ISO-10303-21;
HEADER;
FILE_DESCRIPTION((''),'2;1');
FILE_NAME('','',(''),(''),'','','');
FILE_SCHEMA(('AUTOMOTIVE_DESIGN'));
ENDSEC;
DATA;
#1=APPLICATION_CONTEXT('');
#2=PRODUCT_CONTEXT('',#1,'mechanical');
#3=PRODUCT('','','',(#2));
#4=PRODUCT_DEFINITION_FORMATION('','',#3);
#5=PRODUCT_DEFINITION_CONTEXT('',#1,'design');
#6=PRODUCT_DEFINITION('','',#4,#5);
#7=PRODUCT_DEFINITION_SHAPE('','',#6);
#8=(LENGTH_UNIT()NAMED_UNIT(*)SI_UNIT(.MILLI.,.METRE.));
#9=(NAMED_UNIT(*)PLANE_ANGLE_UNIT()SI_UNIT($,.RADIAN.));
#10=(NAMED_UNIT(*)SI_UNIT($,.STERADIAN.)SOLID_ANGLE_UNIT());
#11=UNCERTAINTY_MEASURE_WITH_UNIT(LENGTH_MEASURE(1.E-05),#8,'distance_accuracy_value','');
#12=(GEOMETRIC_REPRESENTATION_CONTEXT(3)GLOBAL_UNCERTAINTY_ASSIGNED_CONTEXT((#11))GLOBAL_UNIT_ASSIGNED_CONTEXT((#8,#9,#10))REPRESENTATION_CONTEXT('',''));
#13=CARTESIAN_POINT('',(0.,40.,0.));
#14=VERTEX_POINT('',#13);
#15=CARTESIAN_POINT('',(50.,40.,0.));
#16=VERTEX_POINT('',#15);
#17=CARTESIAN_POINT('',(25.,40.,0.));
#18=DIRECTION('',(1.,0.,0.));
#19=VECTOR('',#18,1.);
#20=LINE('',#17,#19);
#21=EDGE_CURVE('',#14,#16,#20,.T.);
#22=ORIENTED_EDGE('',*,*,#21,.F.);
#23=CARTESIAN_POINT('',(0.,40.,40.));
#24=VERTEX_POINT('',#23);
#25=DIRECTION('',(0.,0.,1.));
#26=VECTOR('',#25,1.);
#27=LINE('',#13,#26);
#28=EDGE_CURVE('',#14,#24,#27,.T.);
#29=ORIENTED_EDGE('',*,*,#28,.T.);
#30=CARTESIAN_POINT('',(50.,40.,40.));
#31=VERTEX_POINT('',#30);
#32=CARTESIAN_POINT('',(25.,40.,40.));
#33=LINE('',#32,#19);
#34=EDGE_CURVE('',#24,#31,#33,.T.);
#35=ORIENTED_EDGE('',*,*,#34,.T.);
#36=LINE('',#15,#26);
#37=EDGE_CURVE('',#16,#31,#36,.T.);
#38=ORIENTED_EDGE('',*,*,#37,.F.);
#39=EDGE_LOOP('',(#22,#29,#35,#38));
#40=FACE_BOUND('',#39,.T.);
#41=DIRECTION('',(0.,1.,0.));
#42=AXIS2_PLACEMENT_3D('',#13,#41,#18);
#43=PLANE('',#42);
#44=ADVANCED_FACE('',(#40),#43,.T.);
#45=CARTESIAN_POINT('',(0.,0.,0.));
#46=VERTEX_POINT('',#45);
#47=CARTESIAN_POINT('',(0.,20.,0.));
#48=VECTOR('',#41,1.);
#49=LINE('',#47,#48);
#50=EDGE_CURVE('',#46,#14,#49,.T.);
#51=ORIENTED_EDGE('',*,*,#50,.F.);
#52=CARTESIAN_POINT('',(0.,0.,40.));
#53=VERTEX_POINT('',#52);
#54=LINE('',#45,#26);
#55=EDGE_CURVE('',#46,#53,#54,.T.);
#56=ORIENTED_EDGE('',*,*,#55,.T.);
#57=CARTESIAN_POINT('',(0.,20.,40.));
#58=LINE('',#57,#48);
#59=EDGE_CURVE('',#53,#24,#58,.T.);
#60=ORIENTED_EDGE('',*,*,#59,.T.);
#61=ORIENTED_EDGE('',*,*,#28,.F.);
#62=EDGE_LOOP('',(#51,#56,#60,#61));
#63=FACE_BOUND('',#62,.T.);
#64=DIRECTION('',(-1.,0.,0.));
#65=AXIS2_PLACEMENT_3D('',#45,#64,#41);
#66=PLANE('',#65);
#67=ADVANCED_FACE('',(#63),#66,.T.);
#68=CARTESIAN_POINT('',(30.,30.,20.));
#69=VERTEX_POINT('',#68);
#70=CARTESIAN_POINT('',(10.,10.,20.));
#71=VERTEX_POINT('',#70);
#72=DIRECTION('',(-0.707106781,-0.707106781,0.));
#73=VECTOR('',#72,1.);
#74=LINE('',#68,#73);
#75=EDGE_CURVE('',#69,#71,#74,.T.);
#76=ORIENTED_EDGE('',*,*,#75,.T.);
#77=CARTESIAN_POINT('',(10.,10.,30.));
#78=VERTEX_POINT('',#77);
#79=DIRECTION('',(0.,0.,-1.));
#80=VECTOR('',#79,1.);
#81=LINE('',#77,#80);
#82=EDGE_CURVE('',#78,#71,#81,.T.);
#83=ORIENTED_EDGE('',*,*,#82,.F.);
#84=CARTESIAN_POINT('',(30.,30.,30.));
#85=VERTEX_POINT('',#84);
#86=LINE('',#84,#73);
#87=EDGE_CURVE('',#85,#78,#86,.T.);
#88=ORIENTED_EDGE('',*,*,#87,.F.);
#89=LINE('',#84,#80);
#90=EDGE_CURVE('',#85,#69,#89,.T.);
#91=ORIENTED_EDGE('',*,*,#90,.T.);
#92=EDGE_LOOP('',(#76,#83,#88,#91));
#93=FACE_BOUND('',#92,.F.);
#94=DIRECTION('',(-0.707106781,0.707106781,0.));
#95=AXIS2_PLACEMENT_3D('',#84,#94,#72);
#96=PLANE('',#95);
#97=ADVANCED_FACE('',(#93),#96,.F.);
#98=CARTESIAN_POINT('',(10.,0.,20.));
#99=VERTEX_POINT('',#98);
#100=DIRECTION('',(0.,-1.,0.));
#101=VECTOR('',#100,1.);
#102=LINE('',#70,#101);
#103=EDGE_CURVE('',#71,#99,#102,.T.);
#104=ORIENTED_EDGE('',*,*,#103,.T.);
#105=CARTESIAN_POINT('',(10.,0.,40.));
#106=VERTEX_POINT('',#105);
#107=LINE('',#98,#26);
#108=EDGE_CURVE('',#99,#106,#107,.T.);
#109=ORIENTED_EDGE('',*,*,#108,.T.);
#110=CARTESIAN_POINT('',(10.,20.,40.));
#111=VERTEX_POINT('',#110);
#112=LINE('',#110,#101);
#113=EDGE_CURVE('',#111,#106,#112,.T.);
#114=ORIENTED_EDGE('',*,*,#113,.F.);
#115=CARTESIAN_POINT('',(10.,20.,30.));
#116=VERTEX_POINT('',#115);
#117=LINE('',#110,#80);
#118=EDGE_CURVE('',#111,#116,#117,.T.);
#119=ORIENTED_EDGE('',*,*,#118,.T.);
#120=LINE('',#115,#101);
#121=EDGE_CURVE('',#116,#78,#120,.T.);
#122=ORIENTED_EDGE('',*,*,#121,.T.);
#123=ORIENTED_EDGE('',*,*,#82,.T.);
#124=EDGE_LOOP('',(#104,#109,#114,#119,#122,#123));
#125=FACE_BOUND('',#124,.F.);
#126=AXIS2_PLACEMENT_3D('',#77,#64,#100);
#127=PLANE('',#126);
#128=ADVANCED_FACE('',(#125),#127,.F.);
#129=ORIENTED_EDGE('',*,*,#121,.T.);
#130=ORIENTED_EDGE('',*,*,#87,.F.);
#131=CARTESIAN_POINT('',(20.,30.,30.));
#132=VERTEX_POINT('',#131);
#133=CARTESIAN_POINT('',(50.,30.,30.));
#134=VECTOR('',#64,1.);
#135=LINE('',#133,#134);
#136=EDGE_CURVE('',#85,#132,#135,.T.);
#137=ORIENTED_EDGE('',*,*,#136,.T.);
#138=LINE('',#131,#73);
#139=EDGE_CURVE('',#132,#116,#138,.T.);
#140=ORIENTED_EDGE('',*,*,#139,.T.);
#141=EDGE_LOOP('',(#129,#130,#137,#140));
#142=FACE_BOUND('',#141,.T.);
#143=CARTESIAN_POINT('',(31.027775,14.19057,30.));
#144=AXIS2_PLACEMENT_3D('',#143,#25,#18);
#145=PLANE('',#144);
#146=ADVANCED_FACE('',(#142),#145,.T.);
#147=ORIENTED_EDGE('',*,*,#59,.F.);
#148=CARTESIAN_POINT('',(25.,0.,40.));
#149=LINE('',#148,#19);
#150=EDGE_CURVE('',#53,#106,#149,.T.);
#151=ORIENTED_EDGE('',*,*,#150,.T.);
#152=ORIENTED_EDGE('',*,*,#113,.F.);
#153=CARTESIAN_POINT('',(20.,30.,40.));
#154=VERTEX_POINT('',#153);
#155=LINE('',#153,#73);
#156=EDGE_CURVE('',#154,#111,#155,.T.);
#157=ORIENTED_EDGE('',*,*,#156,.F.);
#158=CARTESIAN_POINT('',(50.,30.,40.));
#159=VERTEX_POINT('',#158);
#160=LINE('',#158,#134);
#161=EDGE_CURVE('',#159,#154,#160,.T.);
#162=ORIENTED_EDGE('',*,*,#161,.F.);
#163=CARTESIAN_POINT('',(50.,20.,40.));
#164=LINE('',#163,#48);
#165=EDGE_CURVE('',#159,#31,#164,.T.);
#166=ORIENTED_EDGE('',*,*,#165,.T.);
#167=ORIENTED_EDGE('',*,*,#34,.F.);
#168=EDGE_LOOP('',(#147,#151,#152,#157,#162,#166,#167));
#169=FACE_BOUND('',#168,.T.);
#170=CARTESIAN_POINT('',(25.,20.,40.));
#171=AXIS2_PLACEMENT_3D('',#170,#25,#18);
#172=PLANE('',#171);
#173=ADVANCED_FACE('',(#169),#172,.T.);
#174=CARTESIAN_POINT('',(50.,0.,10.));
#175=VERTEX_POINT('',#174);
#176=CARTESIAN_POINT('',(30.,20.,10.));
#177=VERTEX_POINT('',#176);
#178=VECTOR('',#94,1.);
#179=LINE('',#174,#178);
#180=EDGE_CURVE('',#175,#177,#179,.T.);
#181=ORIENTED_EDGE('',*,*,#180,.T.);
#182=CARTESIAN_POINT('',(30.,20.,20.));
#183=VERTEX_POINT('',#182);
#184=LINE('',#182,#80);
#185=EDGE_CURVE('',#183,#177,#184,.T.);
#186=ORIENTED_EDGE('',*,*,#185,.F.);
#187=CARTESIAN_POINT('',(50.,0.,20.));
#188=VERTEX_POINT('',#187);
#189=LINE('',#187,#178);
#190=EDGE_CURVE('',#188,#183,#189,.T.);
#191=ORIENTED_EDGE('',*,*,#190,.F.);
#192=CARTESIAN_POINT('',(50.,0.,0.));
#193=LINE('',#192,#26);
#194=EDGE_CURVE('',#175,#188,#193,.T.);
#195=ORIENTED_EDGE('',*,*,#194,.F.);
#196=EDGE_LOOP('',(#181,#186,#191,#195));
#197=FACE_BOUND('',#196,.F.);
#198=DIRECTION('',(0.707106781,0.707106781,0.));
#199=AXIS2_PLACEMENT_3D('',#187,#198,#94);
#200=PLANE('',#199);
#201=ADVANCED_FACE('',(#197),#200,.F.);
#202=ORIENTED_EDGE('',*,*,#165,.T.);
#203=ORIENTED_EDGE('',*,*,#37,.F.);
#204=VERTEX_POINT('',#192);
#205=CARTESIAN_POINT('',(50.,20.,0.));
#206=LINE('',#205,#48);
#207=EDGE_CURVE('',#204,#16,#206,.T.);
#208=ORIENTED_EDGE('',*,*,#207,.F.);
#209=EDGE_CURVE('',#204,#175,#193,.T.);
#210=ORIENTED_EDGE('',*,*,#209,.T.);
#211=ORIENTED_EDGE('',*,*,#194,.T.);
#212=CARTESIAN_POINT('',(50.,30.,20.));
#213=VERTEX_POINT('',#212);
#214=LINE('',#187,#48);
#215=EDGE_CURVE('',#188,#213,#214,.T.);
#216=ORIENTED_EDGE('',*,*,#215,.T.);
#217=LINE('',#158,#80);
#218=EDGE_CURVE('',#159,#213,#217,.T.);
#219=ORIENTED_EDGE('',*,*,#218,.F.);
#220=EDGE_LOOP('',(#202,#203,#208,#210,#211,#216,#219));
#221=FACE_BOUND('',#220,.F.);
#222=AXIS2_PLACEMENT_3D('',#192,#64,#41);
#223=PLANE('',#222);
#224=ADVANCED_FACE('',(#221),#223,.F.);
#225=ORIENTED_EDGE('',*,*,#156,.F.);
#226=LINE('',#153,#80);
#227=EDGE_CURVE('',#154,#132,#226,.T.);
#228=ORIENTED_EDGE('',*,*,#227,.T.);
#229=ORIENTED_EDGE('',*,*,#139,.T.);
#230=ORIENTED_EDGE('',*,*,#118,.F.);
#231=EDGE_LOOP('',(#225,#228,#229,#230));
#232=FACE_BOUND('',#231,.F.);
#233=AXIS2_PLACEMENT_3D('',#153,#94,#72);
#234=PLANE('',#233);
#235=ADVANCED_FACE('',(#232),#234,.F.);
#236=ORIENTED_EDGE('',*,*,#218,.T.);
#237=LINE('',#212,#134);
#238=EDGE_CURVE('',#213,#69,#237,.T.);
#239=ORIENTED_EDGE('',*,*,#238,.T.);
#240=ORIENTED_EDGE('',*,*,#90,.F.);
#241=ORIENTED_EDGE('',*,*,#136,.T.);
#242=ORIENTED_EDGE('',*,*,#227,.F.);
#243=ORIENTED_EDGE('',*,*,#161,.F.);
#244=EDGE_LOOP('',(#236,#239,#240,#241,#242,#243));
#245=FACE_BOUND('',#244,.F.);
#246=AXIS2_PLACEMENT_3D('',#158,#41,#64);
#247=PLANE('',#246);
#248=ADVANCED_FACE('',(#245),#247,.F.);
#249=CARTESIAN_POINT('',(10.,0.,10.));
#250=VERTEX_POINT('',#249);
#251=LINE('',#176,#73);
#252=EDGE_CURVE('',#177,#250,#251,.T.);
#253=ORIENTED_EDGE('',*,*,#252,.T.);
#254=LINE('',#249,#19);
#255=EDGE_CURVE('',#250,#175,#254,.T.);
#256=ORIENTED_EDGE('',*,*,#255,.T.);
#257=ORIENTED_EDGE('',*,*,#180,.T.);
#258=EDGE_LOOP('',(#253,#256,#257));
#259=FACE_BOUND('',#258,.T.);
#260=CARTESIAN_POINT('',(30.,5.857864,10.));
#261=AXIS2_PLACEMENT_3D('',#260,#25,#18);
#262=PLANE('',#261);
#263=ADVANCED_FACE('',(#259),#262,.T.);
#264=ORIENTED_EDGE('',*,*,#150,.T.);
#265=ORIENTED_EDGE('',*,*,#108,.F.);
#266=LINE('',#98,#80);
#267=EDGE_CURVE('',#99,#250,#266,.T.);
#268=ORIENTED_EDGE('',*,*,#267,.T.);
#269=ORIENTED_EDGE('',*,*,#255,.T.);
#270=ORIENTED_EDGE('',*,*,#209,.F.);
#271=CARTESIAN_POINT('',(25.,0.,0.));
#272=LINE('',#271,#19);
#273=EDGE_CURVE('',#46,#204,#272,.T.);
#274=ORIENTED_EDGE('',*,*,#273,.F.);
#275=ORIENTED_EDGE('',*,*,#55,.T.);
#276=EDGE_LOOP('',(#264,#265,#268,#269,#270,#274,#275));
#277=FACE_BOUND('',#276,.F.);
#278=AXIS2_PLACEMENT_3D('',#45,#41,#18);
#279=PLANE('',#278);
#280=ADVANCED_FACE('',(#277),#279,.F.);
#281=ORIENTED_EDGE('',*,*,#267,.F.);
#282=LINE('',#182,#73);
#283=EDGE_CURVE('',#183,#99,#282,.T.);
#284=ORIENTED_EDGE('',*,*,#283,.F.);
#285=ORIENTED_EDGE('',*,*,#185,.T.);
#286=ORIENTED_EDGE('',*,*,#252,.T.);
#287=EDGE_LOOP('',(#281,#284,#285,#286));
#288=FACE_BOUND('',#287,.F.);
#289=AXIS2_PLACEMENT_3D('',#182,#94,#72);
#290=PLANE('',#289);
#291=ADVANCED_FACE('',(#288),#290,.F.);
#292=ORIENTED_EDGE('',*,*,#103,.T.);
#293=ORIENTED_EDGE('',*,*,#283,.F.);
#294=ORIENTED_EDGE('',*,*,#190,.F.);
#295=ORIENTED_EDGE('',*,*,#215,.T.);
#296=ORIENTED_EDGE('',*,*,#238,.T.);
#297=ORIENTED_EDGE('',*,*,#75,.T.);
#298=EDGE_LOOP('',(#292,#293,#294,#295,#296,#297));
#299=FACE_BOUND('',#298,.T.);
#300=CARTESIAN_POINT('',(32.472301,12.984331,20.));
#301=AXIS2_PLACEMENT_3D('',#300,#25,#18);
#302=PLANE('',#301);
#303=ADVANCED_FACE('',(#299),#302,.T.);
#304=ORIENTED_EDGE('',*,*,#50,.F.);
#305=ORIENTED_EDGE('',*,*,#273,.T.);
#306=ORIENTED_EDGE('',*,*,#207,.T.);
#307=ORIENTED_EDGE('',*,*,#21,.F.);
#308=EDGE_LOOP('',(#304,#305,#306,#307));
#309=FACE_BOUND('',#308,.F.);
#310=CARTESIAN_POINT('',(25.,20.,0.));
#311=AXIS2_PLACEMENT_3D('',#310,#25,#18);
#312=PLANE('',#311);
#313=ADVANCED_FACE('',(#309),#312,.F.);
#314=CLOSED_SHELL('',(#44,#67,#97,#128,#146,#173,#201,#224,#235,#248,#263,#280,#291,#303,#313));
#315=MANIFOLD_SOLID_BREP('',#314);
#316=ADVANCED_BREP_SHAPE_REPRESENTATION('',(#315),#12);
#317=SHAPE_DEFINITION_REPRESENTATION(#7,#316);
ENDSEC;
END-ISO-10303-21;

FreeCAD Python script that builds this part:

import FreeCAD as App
import Part
import Sketcher

V = App.Vector

doc = App.newDocument("Part")
body = doc.addObject("PartDesign::Body", "Body")

sketch1 = body.newObject("Sketcher::SketchObject", "Sketch")
sketch1.AttachmentSupport = (doc.getObject("XY_Plane"), [""])
sketch1.MapMode = "FlatFace"
sketch1.addGeometry(Part.LineSegment(V(0, 40, 0), V(0, 0, 0)), False)
sketch1.addGeometry(Part.LineSegment(V(0, 0, 0), V(50, 0, 0)), False)
sketch1.addGeometry(Part.LineSegment(V(50, 0, 0), V(50, 40, 0)), False)
sketch1.addGeometry(Part.LineSegment(V(50, 40, 0), V(0, 40, 0)), False)
sketch1.addConstraint(Sketcher.Constraint("Coincident", 0, 2, 1, 1))
sketch1.addConstraint(Sketcher.Constraint("Coincident", 1, 2, 2, 1))
sketch1.addConstraint(Sketcher.Constraint("Coincident", 2, 2, 3, 1))
sketch1.addConstraint(Sketcher.Constraint("Coincident", 3, 2, 0, 1))
sketch1.addConstraint(Sketcher.Constraint("Vertical", 0))
sketch1.addConstraint(Sketcher.Constraint("Horizontal", 1))
sketch1.addConstraint(Sketcher.Constraint("Vertical", 2))
sketch1.addConstraint(Sketcher.Constraint("Horizontal", 3))
sketch1.addConstraint(Sketcher.Constraint("Coincident", 0, 2, -1, 1))
sketch1.addConstraint(Sketcher.Constraint("DistanceX", 1, 1, 1, 2, 50.0))
sketch1.addConstraint(Sketcher.Constraint("DistanceY", 0, 2, 0, 1, 40.0))
pad1 = body.newObject("PartDesign::Pad", "Pad")
pad1.Profile = sketch1
pad1.Length = 40

sketch2 = body.newObject("Sketcher::SketchObject", "Sketch001")
sketch2.AttachmentSupport = (doc.getObject("XY_Plane"), [""])
sketch2.MapMode = "FlatFace"
sketch2.AttachmentOffset = App.Placement(V(0, 0, 40), App.Rotation())
sketch2.addGeometry(Part.LineSegment(V(10, 20, 0), V(10, 0, 0)), False)
sketch2.addGeometry(Part.LineSegment(V(10, 0, 0), V(50, 0, 0)), False)
sketch2.addGeometry(Part.LineSegment(V(50, 0, 0), V(50, 30, 0)), False)
sketch2.addGeometry(Part.LineSegment(V(50, 30, 0), V(20, 30, 0)), False)
sketch2.addGeometry(Part.LineSegment(V(20, 30, 0), V(10, 20, 0)), False)
sketch2.addConstraint(Sketcher.Constraint("Coincident", 0, 2, 1, 1))
sketch2.addConstraint(Sketcher.Constraint("Coincident", 1, 2, 2, 1))
sketch2.addConstraint(Sketcher.Constraint("Coincident", 2, 2, 3, 1))
sketch2.addConstraint(Sketcher.Constraint("Coincident", 3, 2, 4, 1))
sketch2.addConstraint(Sketcher.Constraint("Coincident", 4, 2, 0, 1))
sketch2.addConstraint(Sketcher.Constraint("Vertical", 0))
sketch2.addConstraint(Sketcher.Constraint("Horizontal", 1))
sketch2.addConstraint(Sketcher.Constraint("Vertical", 2))
sketch2.addConstraint(Sketcher.Constraint("Horizontal", 3))
sketch2.addConstraint(Sketcher.Constraint("PointOnObject", 0, 2, -1))
sketch2.addConstraint(Sketcher.Constraint("Equal", 3, 2))
sketch2.addConstraint(Sketcher.Constraint("DistanceX", 1, 1, 1, 2, 40.0))
sketch2.addConstraint(Sketcher.Constraint("DistanceX", 3, 2, 3, 1, 30.0))
sketch2.addConstraint(Sketcher.Constraint("DistanceY", 0, 2, 0, 1, 20.0))
sketch2.addConstraint(Sketcher.Constraint("DistanceX", -1, 1, 0, 2, 10.0))
pocket1 = body.newObject("PartDesign::Pocket", "Pocket")
pocket1.Profile = sketch2
pocket1.Length = 10

sketch3 = body.newObject("Sketcher::SketchObject", "Sketch002")
sketch3.AttachmentSupport = (doc.getObject("XY_Plane"), [""])
sketch3.MapMode = "FlatFace"
sketch3.AttachmentOffset = App.Placement(V(0, 0, 30), App.Rotation())
sketch3.addGeometry(Part.LineSegment(V(10, 10, 0), V(10, 0, 0)), False)
sketch3.addGeometry(Part.LineSegment(V(10, 0, 0), V(50, 0, 0)), False)
sketch3.addGeometry(Part.LineSegment(V(50, 0, 0), V(50, 30, 0)), False)
sketch3.addGeometry(Part.LineSegment(V(50, 30, 0), V(30, 30, 0)), False)
sketch3.addGeometry(Part.LineSegment(V(30, 30, 0), V(10, 10, 0)), False)
sketch3.addConstraint(Sketcher.Constraint("Coincident", 0, 2, 1, 1))
sketch3.addConstraint(Sketcher.Constraint("Coincident", 1, 2, 2, 1))
sketch3.addConstraint(Sketcher.Constraint("Coincident", 2, 2, 3, 1))
sketch3.addConstraint(Sketcher.Constraint("Coincident", 3, 2, 4, 1))
sketch3.addConstraint(Sketcher.Constraint("Coincident", 4, 2, 0, 1))
sketch3.addConstraint(Sketcher.Constraint("Vertical", 0))
sketch3.addConstraint(Sketcher.Constraint("Horizontal", 1))
sketch3.addConstraint(Sketcher.Constraint("Vertical", 2))
sketch3.addConstraint(Sketcher.Constraint("Horizontal", 3))
sketch3.addConstraint(Sketcher.Constraint("PointOnObject", 0, 2, -1))
sketch3.addConstraint(Sketcher.Constraint("DistanceX", 1, 1, 1, 2, 40.0))
sketch3.addConstraint(Sketcher.Constraint("DistanceX", 3, 2, 3, 1, 20.0))
sketch3.addConstraint(Sketcher.Constraint("DistanceY", 0, 2, 0, 1, 10.0))
sketch3.addConstraint(Sketcher.Constraint("DistanceY", 2, 1, 2, 2, 30.0))
sketch3.addConstraint(Sketcher.Constraint("DistanceX", -1, 1, 0, 2, 10.0))
pocket2 = body.newObject("PartDesign::Pocket", "Pocket001")
pocket2.Profile = sketch3
pocket2.Length = 10

sketch4 = body.newObject("Sketcher::SketchObject", "Sketch003")
sketch4.AttachmentSupport = (doc.getObject("XY_Plane"), [""])
sketch4.MapMode = "FlatFace"
sketch4.AttachmentOffset = App.Placement(V(0, 0, 20), App.Rotation())
sketch4.addGeometry(Part.LineSegment(V(30, 20, 0), V(10, 0, 0)), False)
sketch4.addGeometry(Part.LineSegment(V(10, 0, 0), V(50, 0, 0)), False)
sketch4.addGeometry(Part.LineSegment(V(50, 0, 0), V(30, 20, 0)), False)
sketch4.addConstraint(Sketcher.Constraint("Coincident", 0, 2, 1, 1))
sketch4.addConstraint(Sketcher.Constraint("Coincident", 1, 2, 2, 1))
sketch4.addConstraint(Sketcher.Constraint("Coincident", 2, 2, 0, 1))
sketch4.addConstraint(Sketcher.Constraint("Horizontal", 1))
sketch4.addConstraint(Sketcher.Constraint("PointOnObject", 0, 2, -1))
sketch4.addConstraint(Sketcher.Constraint("Perpendicular", 0, 2))
sketch4.addConstraint(Sketcher.Constraint("Equal", 0, 2))
sketch4.addConstraint(Sketcher.Constraint("DistanceX", 1, 1, 1, 2, 40.0))
sketch4.addConstraint(Sketcher.Constraint("DistanceX", -1, 1, 0, 2, 10.0))
pocket3 = body.newObject("PartDesign::Pocket", "Pocket002")
pocket3.Profile = sketch4
pocket3.Length = 10

doc.recompute()
